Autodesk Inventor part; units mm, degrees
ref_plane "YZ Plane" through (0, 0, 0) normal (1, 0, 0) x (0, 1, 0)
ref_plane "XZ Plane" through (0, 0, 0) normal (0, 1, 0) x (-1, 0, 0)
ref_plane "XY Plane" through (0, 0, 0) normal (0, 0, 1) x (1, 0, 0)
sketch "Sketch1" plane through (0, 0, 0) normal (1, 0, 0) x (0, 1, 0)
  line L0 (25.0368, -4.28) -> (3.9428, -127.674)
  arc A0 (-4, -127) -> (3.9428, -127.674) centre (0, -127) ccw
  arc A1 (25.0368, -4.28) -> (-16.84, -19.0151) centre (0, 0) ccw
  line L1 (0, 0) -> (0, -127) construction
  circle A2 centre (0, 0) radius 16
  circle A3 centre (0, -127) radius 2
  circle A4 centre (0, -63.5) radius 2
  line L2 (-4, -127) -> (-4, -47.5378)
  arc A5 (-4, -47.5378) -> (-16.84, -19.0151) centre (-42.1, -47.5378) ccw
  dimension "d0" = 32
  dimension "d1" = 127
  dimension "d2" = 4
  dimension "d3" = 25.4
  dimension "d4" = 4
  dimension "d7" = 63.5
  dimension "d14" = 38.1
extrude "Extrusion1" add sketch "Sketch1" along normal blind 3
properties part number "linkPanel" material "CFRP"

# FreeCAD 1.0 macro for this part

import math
import FreeCAD as App
import Part
import Sketcher
from FreeCAD import Vector

doc = App.newDocument("Part")
params = doc.addObject("Spreadsheet::Sheet", "Params")
for row, (alias, value) in enumerate([
    ("sketch1_diameter", "4 mm"),
    ("sketch1_diameter2", "32 mm"),
    ("sketch1_radius", "4 mm"),
    ("sketch1_radius2", "25.4 mm"),
    ("sketch1_radius3", "38.1 mm"),
    ("pad1_length", "3 mm"),
], start=1):
    params.set(f"A{row}", alias)
    params.set(f"B{row}", "=" + value)
    params.setAlias(f"B{row}", alias)

body = doc.addObject("PartDesign::Body", "Body")

# Sketch on YZ plane
sketch1 = body.newObject("Sketcher::SketchObject", "Sketch")
sketch1.AttachmentSupport = (doc.getObject("YZ_Plane"), [""])
sketch1.MapMode = "FlatFace"
sketch1.addGeometry(Part.LineSegment(Vector(3.9428, -127.674, 0), Vector(25.0368, -4.28, 0)), False)
sketch1.addGeometry(Part.ArcOfCircle(Part.Circle(Vector(0, 0, 0), Vector(0, 0, 1), 25.399995), math.radians(-9.700848), math.radians(228.471515)), False)
sketch1.addGeometry(Part.ArcOfCircle(Part.Circle(Vector(-42.1, -47.5378, 0), Vector(0, 0, 1), 38.1), math.radians(0), math.radians(48.471565)), False)
sketch1.addGeometry(Part.LineSegment(Vector(-4, -47.5378, 0), Vector(-4, -127, 0)), False)
sketch1.addGeometry(Part.ArcOfCircle(Part.Circle(Vector(0, -127, 0), Vector(0, 0, 1), 4), math.radians(180), math.radians(350.299367)), False)
sketch1.addGeometry(Part.Circle(Vector(0, -127, 0), Vector(0, 0, 1), 2), False)
sketch1.addGeometry(Part.Circle(Vector(0, -63.5, 0), Vector(0, 0, 1), 2), False)
sketch1.addGeometry(Part.Circle(Vector(0, 0, 0), Vector(0, 0, 1), 16), False)
sketch1.addConstraint(Sketcher.Constraint("Tangent", 0, 2, 1, 1))
sketch1.addConstraint(Sketcher.Constraint("Tangent", 1, 2, 2, 2))
sketch1.addConstraint(Sketcher.Constraint("Tangent", 2, 1, 3, 1))
sketch1.addConstraint(Sketcher.Constraint("Tangent", 3, 2, 4, 1))
sketch1.addConstraint(Sketcher.Constraint("Tangent", 4, 2, 0, 1))
sketch1.addConstraint(Sketcher.Constraint("Vertical", 3))
sketch1.addConstraint(Sketcher.Constraint("Coincident", 1, 3, -1, 1))
sketch1.addConstraint(Sketcher.Constraint("Coincident", 7, 3, -1, 1))
sketch1.addConstraint(Sketcher.Constraint("Coincident", 5, 3, 4, 3))
sketch1.addConstraint(Sketcher.Constraint("Equal", 5, 6))
sketch1.addConstraint(Sketcher.Constraint("PointOnObject", 4, 3, -2))
sketch1.addConstraint(Sketcher.Constraint("PointOnObject", 6, 3, -2))
sketch1.addConstraint(Sketcher.Constraint("Diameter", 5, 4.0))
sketch1.addConstraint(Sketcher.Constraint("Diameter", 7, 32.0))
sketch1.addConstraint(Sketcher.Constraint("Radius", 4, 4.0))
sketch1.addConstraint(Sketcher.Constraint("Radius", 1, 25.4))
sketch1.addConstraint(Sketcher.Constraint("Radius", 2, 38.1))
sketch1.addConstraint(Sketcher.Constraint("DistanceY", 4, 3, -1, 1, 127.0))
sketch1.addConstraint(Sketcher.Constraint("DistanceY", 6, 3, -1, 1, 63.5))
sketch1.setExpression("Constraints[12]", "Params.sketch1_diameter")
sketch1.setExpression("Constraints[13]", "Params.sketch1_diameter2")
sketch1.setExpression("Constraints[14]", "Params.sketch1_radius")
sketch1.setExpression("Constraints[15]", "Params.sketch1_radius2")
sketch1.setExpression("Constraints[16]", "Params.sketch1_radius3")
pad1 = body.newObject("PartDesign::Pad", "Pad")
pad1.Profile = sketch1
pad1.setExpression("Length", "Params.pad1_length")

doc.recompute()
